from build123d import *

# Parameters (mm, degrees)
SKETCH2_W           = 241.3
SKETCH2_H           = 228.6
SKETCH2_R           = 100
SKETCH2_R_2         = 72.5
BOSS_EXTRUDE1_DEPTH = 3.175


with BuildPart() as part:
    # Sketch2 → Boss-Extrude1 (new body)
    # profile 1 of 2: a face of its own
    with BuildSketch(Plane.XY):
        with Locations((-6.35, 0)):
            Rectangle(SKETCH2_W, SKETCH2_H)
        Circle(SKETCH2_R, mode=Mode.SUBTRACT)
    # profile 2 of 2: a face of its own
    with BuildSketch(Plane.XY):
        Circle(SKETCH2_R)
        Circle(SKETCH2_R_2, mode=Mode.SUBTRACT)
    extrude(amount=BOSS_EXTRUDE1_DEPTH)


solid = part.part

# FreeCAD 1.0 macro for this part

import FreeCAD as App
import Part
import Sketcher

V = App.Vector
Q = App.Units.Quantity

doc = App.newDocument("Part")
body = doc.addObject("PartDesign::Body", "Body")

# Sketch on XY plane
sketch1 = body.newObject("Sketcher::SketchObject", "Sketch")
sketch1.AttachmentSupport = (doc.getObject("XY_Plane"), [""])
sketch1.MapMode = "FlatFace"
sketch1.addGeometry(Part.LineSegment(V(-127, 114, 0), V(-127, -114, 0)), False)
sketch1.addGeometry(Part.LineSegment(V(-127, -114, 0), V(114, -114, 0)), False)
sketch1.addGeometry(Part.LineSegment(V(114, -114, 0), V(114, 114, 0)), False)
sketch1.addGeometry(Part.LineSegment(V(114, 114, 0), V(-127, 114, 0)), False)
sketch1.addGeometry(Part.Circle(V(0, 0, 0), V(0, 0, 1), 72), False)
sketch1.addConstraint(Sketcher.Constraint("Coincident", 0, 2, 1, 1))
sketch1.addConstraint(Sketcher.Constraint("Coincident", 1, 2, 2, 1))
sketch1.addConstraint(Sketcher.Constraint("Coincident", 2, 2, 3, 1))
sketch1.addConstraint(Sketcher.Constraint("Coincident", 3, 2, 0, 1))
sketch1.addConstraint(Sketcher.Constraint("Vertical", 0))
sketch1.addConstraint(Sketcher.Constraint("Horizontal", 1))
sketch1.addConstraint(Sketcher.Constraint("Vertical", 2))
sketch1.addConstraint(Sketcher.Constraint("Horizontal", 3))
sketch1.addConstraint(Sketcher.Constraint("Coincident", 4, 3, -1, 1))
sketch1.addConstraint(Sketcher.Constraint("DistanceY", 0, 2, 0, 1, Q("9 in")))
sketch1.addConstraint(Sketcher.Constraint("DistanceX", 1, 1, 1, 2, Q("9.5 in")))
sketch1.addConstraint(Sketcher.Constraint("DistanceX", 0, 2, -1, 1, Q("5 in")))
sketch1.addConstraint(Sketcher.Constraint("DistanceY", 0, 2, -1, 1, Q("4.5 in")))
sketch1.addConstraint(Sketcher.Constraint("Diameter", 4, Q("145 mm")))
pad1 = body.newObject("PartDesign::Pad", "Pad")
pad1.Profile = sketch1
pad1.Length = Q("0.125 in")

doc.recompute()
